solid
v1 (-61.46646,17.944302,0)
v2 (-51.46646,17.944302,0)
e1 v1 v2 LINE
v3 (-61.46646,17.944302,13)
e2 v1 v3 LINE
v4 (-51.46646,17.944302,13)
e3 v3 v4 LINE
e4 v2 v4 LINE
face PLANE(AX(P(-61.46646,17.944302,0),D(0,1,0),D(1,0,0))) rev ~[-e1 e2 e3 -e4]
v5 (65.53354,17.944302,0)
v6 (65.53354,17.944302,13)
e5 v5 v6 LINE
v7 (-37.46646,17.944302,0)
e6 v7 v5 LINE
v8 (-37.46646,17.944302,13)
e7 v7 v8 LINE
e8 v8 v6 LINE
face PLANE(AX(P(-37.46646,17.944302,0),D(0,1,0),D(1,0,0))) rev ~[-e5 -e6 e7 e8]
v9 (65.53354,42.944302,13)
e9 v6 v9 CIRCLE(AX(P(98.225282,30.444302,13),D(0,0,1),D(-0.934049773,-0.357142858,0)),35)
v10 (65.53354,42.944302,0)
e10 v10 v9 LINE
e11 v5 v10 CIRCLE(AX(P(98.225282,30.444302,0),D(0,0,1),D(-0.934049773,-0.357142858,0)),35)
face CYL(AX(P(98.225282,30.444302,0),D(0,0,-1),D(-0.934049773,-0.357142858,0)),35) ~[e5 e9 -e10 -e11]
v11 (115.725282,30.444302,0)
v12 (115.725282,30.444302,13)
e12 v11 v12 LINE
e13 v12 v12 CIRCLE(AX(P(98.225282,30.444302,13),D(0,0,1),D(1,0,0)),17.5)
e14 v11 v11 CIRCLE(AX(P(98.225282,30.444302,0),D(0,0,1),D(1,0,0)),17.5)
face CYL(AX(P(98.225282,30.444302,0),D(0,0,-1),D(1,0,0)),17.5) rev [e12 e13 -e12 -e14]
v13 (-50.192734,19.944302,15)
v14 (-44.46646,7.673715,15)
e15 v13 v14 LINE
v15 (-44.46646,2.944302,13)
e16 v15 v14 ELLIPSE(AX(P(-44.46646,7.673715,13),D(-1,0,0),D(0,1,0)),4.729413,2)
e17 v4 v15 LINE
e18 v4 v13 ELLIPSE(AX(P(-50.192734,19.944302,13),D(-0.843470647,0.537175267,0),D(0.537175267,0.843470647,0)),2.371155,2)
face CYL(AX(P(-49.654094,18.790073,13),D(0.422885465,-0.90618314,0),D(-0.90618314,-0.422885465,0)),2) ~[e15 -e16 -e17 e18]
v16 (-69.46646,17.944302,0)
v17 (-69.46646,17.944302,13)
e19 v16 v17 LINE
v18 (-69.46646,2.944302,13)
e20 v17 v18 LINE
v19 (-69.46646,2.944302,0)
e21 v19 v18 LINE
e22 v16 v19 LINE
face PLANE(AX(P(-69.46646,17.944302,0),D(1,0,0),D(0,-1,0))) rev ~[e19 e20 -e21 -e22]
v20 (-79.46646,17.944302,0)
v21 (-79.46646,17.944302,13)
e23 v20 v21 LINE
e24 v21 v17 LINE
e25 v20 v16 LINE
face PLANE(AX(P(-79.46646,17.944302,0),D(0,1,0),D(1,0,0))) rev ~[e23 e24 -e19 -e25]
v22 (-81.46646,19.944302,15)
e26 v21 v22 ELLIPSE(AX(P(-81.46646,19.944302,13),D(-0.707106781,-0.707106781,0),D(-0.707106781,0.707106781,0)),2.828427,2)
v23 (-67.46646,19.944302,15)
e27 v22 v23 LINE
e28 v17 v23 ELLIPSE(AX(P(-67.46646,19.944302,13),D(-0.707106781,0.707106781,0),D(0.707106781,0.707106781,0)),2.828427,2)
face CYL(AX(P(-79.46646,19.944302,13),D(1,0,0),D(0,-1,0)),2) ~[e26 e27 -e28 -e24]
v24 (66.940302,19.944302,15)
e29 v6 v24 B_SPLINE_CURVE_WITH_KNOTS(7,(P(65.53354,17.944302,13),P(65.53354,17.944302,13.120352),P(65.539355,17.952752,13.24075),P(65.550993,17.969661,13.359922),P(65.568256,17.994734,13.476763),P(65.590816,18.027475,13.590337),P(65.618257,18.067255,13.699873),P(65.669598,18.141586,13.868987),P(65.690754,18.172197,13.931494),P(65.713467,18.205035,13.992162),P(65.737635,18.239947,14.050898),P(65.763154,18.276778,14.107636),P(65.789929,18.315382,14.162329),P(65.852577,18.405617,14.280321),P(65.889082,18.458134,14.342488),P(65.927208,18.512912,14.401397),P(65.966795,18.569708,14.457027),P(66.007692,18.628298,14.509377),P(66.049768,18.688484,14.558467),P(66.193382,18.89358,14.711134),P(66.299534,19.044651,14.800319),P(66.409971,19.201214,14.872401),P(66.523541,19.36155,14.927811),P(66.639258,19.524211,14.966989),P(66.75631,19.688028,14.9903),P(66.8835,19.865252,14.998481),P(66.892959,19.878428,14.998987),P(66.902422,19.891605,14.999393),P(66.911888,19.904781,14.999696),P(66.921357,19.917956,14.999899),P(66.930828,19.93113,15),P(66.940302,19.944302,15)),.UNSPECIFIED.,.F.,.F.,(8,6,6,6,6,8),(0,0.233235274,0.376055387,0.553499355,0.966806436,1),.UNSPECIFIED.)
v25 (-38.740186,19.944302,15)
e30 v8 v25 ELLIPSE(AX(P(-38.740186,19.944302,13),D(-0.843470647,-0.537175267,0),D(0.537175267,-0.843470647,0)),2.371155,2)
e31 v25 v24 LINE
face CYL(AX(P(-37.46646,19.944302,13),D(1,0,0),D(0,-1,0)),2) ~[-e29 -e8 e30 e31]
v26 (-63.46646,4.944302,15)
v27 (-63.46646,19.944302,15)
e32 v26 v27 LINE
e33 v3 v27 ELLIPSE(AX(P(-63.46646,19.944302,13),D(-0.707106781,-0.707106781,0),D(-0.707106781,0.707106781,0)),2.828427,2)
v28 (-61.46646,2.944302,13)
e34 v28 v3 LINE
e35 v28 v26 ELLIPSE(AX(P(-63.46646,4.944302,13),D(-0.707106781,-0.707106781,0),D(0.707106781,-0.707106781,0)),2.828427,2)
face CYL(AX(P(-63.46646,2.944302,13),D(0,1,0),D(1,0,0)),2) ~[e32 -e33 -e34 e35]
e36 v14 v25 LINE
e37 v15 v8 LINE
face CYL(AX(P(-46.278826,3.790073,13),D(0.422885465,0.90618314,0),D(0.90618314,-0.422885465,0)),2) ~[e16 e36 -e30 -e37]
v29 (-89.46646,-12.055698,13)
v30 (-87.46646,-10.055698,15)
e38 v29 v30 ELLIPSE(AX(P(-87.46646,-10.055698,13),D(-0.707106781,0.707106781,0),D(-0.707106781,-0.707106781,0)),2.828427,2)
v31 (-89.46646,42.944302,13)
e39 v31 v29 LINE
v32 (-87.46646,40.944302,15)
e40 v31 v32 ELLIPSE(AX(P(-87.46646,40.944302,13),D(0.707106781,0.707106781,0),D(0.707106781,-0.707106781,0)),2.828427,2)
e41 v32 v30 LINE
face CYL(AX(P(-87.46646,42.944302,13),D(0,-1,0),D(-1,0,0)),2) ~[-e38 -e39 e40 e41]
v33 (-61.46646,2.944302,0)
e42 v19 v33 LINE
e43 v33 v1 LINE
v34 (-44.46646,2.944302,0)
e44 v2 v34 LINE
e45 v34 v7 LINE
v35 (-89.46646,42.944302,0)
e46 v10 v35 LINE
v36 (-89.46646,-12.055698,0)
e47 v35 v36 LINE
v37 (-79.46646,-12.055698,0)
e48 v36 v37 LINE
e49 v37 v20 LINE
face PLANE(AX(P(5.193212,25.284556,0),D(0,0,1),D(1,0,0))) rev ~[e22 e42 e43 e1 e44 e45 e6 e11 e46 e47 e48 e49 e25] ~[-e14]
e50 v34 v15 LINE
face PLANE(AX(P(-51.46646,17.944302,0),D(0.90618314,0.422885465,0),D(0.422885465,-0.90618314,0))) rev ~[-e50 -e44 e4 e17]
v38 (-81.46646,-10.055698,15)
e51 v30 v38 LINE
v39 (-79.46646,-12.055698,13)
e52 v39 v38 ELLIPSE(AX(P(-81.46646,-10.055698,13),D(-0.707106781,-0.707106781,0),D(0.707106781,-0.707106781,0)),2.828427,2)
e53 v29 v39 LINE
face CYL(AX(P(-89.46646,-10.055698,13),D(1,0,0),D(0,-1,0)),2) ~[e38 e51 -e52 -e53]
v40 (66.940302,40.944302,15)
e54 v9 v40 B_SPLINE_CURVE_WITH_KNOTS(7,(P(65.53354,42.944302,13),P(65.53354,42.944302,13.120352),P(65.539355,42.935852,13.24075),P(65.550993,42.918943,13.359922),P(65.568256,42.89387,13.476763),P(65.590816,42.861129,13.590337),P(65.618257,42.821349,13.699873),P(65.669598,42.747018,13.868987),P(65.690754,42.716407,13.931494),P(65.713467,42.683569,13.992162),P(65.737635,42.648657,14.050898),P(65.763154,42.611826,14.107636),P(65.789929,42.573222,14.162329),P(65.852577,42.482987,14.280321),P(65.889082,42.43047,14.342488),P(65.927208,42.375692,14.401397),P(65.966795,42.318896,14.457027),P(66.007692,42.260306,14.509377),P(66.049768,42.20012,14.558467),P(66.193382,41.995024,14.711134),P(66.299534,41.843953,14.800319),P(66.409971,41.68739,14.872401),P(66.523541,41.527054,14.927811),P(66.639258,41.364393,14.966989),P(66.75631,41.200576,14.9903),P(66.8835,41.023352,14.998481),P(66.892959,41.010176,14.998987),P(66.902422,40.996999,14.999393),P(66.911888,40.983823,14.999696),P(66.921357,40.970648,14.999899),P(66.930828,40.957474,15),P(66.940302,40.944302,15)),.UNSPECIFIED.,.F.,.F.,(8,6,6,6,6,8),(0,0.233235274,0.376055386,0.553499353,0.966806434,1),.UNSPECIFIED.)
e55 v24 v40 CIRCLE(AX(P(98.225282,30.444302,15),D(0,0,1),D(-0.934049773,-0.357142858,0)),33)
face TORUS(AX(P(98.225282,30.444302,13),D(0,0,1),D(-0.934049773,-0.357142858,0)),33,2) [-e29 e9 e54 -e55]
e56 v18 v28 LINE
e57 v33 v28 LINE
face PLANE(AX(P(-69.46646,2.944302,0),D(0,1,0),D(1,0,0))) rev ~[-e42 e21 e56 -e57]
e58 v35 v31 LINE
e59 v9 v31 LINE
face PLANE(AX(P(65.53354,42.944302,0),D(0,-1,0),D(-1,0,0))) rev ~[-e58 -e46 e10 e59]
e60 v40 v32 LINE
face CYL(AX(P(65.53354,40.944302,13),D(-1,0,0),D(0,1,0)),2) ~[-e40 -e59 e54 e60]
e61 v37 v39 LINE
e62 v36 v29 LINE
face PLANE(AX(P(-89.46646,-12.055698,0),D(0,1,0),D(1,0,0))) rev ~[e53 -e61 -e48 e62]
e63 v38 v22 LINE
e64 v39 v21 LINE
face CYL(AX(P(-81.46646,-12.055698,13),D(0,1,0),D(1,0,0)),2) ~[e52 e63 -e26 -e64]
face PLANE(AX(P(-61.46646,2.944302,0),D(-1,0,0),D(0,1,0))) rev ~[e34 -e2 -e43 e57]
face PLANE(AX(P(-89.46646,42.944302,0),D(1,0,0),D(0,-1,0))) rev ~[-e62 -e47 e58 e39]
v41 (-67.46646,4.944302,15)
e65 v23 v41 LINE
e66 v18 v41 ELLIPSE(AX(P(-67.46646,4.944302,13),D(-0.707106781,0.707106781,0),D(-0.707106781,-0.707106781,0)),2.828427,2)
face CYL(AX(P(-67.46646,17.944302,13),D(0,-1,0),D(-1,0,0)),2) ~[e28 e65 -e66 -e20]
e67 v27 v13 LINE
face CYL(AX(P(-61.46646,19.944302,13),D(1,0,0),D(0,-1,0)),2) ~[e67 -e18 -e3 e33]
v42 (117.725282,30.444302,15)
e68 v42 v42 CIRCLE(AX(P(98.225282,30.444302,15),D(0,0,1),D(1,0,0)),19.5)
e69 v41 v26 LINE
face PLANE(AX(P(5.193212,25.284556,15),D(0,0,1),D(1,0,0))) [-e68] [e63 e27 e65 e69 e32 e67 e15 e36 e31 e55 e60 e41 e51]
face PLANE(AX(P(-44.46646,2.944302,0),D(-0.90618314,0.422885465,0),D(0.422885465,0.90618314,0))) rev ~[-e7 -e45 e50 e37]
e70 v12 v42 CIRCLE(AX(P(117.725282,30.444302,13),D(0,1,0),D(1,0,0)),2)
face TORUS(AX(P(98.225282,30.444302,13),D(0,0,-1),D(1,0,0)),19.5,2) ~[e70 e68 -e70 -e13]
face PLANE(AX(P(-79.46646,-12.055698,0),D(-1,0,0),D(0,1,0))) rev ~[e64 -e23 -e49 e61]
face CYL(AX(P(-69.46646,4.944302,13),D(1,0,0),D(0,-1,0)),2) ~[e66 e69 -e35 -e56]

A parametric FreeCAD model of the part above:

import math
import FreeCAD as App
import Part
import Sketcher
from FreeCAD import Vector
Q = App.Units.Quantity


def edges_at(feature, points):
    """Names of the edges that pass closest to the given points."""
    edges = feature.Shape.Edges
    near = lambda p: min(range(len(edges)), key=lambda i: edges[i].distToShape(Part.Vertex(*p))[0])
    return sorted({f"Edge{near(p) + 1}" for p in points})

doc = App.newDocument("Part")
body = doc.addObject("PartDesign::Body", "Body")

# Sketch on XY plane
sketch1 = body.newObject("Sketcher::SketchObject", "Sketch")
sketch1.AttachmentSupport = (doc.getObject("XY_Plane"), [""])
sketch1.MapMode = "FlatFace"
sketch1.addGeometry([
    Part.LineSegment(Vector(-89, -12, 0), Vector(-79, -12, 0)),  # 0
    Part.LineSegment(Vector(-79, -12, 0), Vector(-79, 18, 0)),  # 1
    Part.LineSegment(Vector(-79, 18, 0), Vector(-69, 18, 0)),  # 2
    Part.LineSegment(Vector(-69, 18, 0), Vector(-69, 3, 0)),  # 3
    Part.LineSegment(Vector(-69, 3, 0), Vector(-61, 3, 0)),  # 4
    Part.LineSegment(Vector(-61, 3, 0), Vector(-61, 18, 0)),  # 5
    Part.LineSegment(Vector(-61, 18, 0), Vector(-51, 18, 0)),  # 6
    Part.LineSegment(Vector(-51, 18, 0), Vector(-44, 3, 0)),  # 7
    Part.LineSegment(Vector(-44, 3, 0), Vector(-37, 18, 0)),  # 8
    Part.LineSegment(Vector(-37, 18, 0), Vector(66, 18, 0)),  # 9
    Part.ArcOfCircle(Part.Circle(Vector(98, 30, 0), Vector(0, 0, 1), 35), math.radians(-159), math.radians(159)),  # 10
    Part.LineSegment(Vector(66, 43, 0), Vector(-89, 43, 0)),  # 11
    Part.LineSegment(Vector(-89, 43, 0), Vector(-89, -12, 0)),  # 12
    Part.Circle(Vector(98, 30, 0), Vector(0, 0, 1), 18),  # 13
], False)
sketch1.addConstraint([
    Sketcher.Constraint("Coincident", 0, 2, 1, 1),
    Sketcher.Constraint("Coincident", 1, 2, 2, 1),
    Sketcher.Constraint("Coincident", 2, 2, 3, 1),
    Sketcher.Constraint("Coincident", 3, 2, 4, 1),
    Sketcher.Constraint("Coincident", 4, 2, 5, 1),
    Sketcher.Constraint("Coincident", 5, 2, 6, 1),
    Sketcher.Constraint("Coincident", 6, 2, 7, 1),
    Sketcher.Constraint("Coincident", 7, 2, 8, 1),
    Sketcher.Constraint("Coincident", 8, 2, 9, 1),
    Sketcher.Constraint("Coincident", 9, 2, 10, 1),
    Sketcher.Constraint("Coincident", 10, 2, 11, 1),
    Sketcher.Constraint("Coincident", 11, 2, 12, 1),
    Sketcher.Constraint("Coincident", 12, 2, 0, 1),
    Sketcher.Constraint("Horizontal", 0),
    Sketcher.Constraint("Vertical", 1),
    Sketcher.Constraint("Horizontal", 2),
    Sketcher.Constraint("Vertical", 3),
    Sketcher.Constraint("Horizontal", 4),
    Sketcher.Constraint("Vertical", 5),
    Sketcher.Constraint("Horizontal", 6),
    Sketcher.Constraint("Horizontal", 9),
    Sketcher.Constraint("Horizontal", 11),
    Sketcher.Constraint("Vertical", 12),
    Sketcher.Constraint("Coincident", 13, 3, 10, 3),
    Sketcher.Constraint("Horizontal", 2, 2, 5, 2),
    Sketcher.Constraint("Horizontal", 4, 2, 7, 2),
    Sketcher.Constraint("Horizontal", 6, 2, 8, 2),
    Sketcher.Constraint("Vertical", 9, 2, 10, 2),
    Sketcher.Constraint("Equal", 0, 2),
    Sketcher.Constraint("Equal", 2, 6),
    Sketcher.Constraint("Equal", 7, 8),
    Sketcher.Constraint("Diameter", 13, Q("35 mm")),
    Sketcher.Constraint("Radius", 10, Q("35 mm")),
    Sketcher.Constraint("DistanceX", 0, 1, 0, 2, Q("10 mm")),
    Sketcher.Constraint("DistanceX", 4, 1, 4, 2, Q("8 mm")),
    Sketcher.Constraint("DistanceX", 9, 1, 9, 2, Q("103 mm")),
    Sketcher.Constraint("DistanceX", 11, 2, 11, 1, Q("155 mm")),
    Sketcher.Constraint("DistanceY", 1, 1, 1, 2, Q("30 mm")),
    Sketcher.Constraint("DistanceY", 3, 2, 3, 1, Q("15 mm")),
    Sketcher.Constraint("DistanceY", 12, 2, 12, 1, Q("55 mm")),
    Sketcher.Constraint("DistanceY", -1, 1, 3, 2, Q("2.944302 mm")),
    Sketcher.Constraint("DistanceX", 0, 2, -1, 1, Q("79.46646 mm")),
])
pad1 = body.newObject("PartDesign::Pad", "Pad")
pad1.Profile = sketch1
pad1.Length = 15
doc.recompute()

fillet = body.newObject("PartDesign::Fillet", "Fillet")
fillet.Base = (pad1, edges_at(pad1, [
    (-89.466, 15.444, 15),
    (-11.966, 42.944, 15),
    (133.225, 30.444, 15),
    (14.034, 17.944, 15),
    (-40.966, 10.444, 15),
    (-84.466, -12.056, 15),
    (-79.466, 2.944, 15),
    (-74.466, 17.944, 15),
    (-69.466, 10.444, 15),
    (-65.466, 2.944, 15),
    (-61.466, 10.444, 15),
    (-56.466, 17.944, 15),
    (-47.966, 10.444, 15),
    (80.725, 30.444, 15),
]))
fillet.Radius = 2

doc.recompute()
